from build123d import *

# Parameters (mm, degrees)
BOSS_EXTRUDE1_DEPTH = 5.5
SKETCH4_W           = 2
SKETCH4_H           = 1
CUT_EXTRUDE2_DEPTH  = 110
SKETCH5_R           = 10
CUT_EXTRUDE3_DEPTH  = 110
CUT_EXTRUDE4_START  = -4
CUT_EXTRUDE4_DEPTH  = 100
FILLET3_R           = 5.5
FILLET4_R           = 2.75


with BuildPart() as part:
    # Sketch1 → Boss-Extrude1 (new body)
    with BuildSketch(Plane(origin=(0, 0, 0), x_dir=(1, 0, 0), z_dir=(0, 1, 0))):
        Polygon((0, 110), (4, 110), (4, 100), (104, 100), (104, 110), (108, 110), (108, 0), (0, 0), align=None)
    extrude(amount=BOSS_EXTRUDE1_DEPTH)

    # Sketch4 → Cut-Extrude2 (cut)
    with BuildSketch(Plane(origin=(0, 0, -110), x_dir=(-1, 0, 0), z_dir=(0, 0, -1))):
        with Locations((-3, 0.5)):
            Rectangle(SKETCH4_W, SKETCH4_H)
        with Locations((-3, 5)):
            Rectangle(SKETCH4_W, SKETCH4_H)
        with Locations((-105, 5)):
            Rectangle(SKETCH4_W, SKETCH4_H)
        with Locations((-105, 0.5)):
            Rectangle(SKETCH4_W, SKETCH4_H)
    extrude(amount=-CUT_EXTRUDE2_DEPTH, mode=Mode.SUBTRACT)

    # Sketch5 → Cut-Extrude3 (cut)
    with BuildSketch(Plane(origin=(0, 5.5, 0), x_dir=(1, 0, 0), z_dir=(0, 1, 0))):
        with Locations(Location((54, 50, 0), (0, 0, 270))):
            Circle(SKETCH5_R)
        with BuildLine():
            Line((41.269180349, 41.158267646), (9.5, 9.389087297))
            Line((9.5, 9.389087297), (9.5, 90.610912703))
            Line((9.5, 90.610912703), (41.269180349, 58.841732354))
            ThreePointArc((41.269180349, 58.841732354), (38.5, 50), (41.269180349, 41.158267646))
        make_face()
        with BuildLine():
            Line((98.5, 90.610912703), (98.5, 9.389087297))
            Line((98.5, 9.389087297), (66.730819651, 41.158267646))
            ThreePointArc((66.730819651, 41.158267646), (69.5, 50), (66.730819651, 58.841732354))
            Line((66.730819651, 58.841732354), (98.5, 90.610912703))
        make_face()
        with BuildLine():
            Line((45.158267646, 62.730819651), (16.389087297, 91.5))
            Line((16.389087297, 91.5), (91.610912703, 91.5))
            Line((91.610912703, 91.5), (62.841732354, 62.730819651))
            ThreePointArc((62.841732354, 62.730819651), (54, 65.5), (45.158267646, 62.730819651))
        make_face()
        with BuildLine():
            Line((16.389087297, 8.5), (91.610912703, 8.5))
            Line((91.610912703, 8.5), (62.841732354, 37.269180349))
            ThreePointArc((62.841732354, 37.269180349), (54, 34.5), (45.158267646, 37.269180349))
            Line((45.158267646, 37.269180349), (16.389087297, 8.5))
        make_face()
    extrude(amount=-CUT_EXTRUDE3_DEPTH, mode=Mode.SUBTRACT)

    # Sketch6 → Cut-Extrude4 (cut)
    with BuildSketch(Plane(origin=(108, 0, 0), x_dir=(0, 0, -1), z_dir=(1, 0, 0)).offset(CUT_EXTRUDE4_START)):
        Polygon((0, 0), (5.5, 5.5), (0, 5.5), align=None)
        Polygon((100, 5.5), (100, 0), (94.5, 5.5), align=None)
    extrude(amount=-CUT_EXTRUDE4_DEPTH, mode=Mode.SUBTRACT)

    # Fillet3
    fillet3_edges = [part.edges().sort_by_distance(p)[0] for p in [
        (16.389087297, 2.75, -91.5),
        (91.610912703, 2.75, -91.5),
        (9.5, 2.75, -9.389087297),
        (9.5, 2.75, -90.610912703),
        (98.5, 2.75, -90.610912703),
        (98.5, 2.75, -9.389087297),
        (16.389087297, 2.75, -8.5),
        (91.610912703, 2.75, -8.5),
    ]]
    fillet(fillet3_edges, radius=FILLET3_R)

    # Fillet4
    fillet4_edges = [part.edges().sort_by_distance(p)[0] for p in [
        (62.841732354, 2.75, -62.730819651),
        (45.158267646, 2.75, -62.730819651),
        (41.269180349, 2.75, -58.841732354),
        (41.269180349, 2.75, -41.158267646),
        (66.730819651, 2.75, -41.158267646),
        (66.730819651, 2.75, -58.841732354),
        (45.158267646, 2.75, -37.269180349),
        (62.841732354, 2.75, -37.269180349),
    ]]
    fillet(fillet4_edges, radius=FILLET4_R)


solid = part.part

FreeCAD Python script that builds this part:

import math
import FreeCAD as App
import Part
import Sketcher
from FreeCAD import Vector


def edges_at(feature, points):
    """Names of the edges that pass closest to the given points."""
    edges = feature.Shape.Edges
    near = lambda p: min(range(len(edges)), key=lambda i: edges[i].distToShape(Part.Vertex(*p))[0])
    return sorted({f"Edge{near(p) + 1}" for p in points})


def add_polygon(sketch, points):
    """Adds a closed chain of lines whose ends are joined by coincident constraints."""
    first, n = sketch.GeometryCount, len(points)
    for a, b in zip(points, points[1:] + points[:1]):
        sketch.addGeometry(Part.LineSegment(App.Vector(*a, 0), App.Vector(*b, 0)), False)
    for i in range(n):
        sketch.addConstraint(Sketcher.Constraint("Coincident", first + i, 2, first + (i + 1) % n, 1))

doc = App.newDocument("Part")
body = doc.addObject("PartDesign::Body", "Body")

# Sketch on XZ plane
sketch1 = doc.addObject("Sketcher::SketchObject", "Sketch")
body.addObject(sketch1)
sketch1.AttachmentSupport = (doc.XZ_Plane, [""])
sketch1.MapMode = "FlatFace"
add_polygon(sketch1, [(4, -110), (0, -110), (0, 0), (108, 0), (108, -110), (104, -110), (104, -100), (4, -100)])  # lines 0-7
sketch1.addConstraint([
    Sketcher.Constraint("Horizontal", 0),
    Sketcher.Constraint("Vertical", 1),
    Sketcher.Constraint("Horizontal", 2),
    Sketcher.Constraint("Vertical", 3),
    Sketcher.Constraint("Horizontal", 4),
    Sketcher.Constraint("Vertical", 5),
    Sketcher.Constraint("Horizontal", 6),
    Sketcher.Constraint("Vertical", 7),
    Sketcher.Constraint("Coincident", 1, 2, -1, 1),
    Sketcher.Constraint("Horizontal", 0, 2, 3, 2),
    Sketcher.Constraint("Equal", 0, 4),
    Sketcher.Constraint("DistanceX", 0, 2, 0, 1, 4.0),
    Sketcher.Constraint("DistanceX", 2, 1, 2, 2, 108.0),
    Sketcher.Constraint("DistanceY", 1, 1, 1, 2, 110.0),
    Sketcher.Constraint("DistanceY", 5, 1, 5, 2, 10.0),
])
pad1 = doc.addObject("PartDesign::Pad", "Pad")
body.addObject(pad1)
pad1.Profile = sketch1
pad1.Length = 5.5
pad1.Reversed = True

# Sketch on XY plane
sketch2 = doc.addObject("Sketcher::SketchObject", "Sketch001")
body.addObject(sketch2)
sketch2.AttachmentSupport = (doc.XY_Plane, [""])
sketch2.MapMode = "FlatFace"
sketch2.AttachmentOffset = App.Placement(Vector(0, 0, -110), App.Rotation())
add_polygon(sketch2, [(4, 1), (4, 0), (2, 0), (2, 1)])  # lines 0-3
add_polygon(sketch2, [(4, 5.5), (4, 4.5), (2, 4.5), (2, 5.5)])  # lines 4-7
add_polygon(sketch2, [(106, 5.5), (106, 4.5), (104, 4.5), (104, 5.5)])  # lines 8-11
add_polygon(sketch2, [(106, 1), (106, 0), (104, 0), (104, 1)])  # lines 12-15
sketch2.addConstraint([
    Sketcher.Constraint("Vertical", 0),
    Sketcher.Constraint("Horizontal", 1),
    Sketcher.Constraint("Vertical", 2),
    Sketcher.Constraint("Horizontal", 3),
    Sketcher.Constraint("Vertical", 4),
    Sketcher.Constraint("Horizontal", 5),
    Sketcher.Constraint("Vertical", 6),
    Sketcher.Constraint("Horizontal", 7),
    Sketcher.Constraint("Vertical", 8),
    Sketcher.Constraint("Horizontal", 9),
    Sketcher.Constraint("Vertical", 10),
    Sketcher.Constraint("Horizontal", 11),
    Sketcher.Constraint("Vertical", 12),
    Sketcher.Constraint("Horizontal", 13),
    Sketcher.Constraint("Vertical", 14),
    Sketcher.Constraint("Horizontal", 15),
    Sketcher.Constraint("PointOnObject", 0, 2, -1),
    Sketcher.Constraint("PointOnObject", 12, 2, -1),
    Sketcher.Constraint("Horizontal", 5, 2, 8, 2),
    Sketcher.Constraint("Horizontal", 7, 2, 10, 2),
    Sketcher.Constraint("Horizontal", 3, 2, 14, 2),
    Sketcher.Constraint("Vertical", 3, 2, 4, 2),
    Sketcher.Constraint("Vertical", 2, 2, 5, 2),
    Sketcher.Constraint("Vertical", 11, 2, 12, 2),
    Sketcher.Constraint("Vertical", 10, 2, 13, 2),
    Sketcher.Constraint("Equal", 7, 9),
    Sketcher.Constraint("Equal", 2, 4),
    Sketcher.Constraint("DistanceX", 1, 2, 1, 1, 2.0),
    Sketcher.Constraint("DistanceY", 0, 2, 0, 1, 1.0),
    Sketcher.Constraint("DistanceX", -1, 1, 0, 2, 4.0),
    Sketcher.Constraint("DistanceX", -1, 1, 8, 2, 106.0),
    Sketcher.Constraint("DistanceY", -1, 1, 4, 2, 4.5),
])
pocket1 = doc.addObject("PartDesign::Pocket", "Pocket")
body.addObject(pocket1)
pocket1.Profile = sketch2
pocket1.Length = 110
pocket1.Reversed = True

# Sketch on XZ plane
sketch3 = doc.addObject("Sketcher::SketchObject", "Sketch002")
body.addObject(sketch3)
sketch3.AttachmentSupport = (doc.XZ_Plane, [""])
sketch3.MapMode = "FlatFace"
sketch3.AttachmentOffset = App.Placement(Vector(0, 0, -5.5), App.Rotation())
sketch3.addGeometry([
    Part.Circle(Vector(54, -50, 0), Vector(0, 0, 1), 10),  # 0
    Part.LineSegment(Vector(10, -9, 0), Vector(41, -41, 0)),  # 1
    Part.ArcOfCircle(Part.Circle(Vector(54, -50, 0), Vector(0, 0, 1), 16), math.radians(145), math.radians(215)),  # 2
    Part.LineSegment(Vector(41, -59, 0), Vector(10, -91, 0)),  # 3
    Part.LineSegment(Vector(10, -91, 0), Vector(10, -9, 0)),  # 4
    Part.LineSegment(Vector(98, -9, 0), Vector(98, -91, 0)),  # 5
    Part.LineSegment(Vector(98, -91, 0), Vector(67, -59, 0)),  # 6
    Part.ArcOfCircle(Part.Circle(Vector(54, -50, 0), Vector(0, 0, 1), 16), math.radians(-35), math.radians(35)),  # 7
    Part.LineSegment(Vector(67, -41, 0), Vector(98, -9, 0)),  # 8
    Part.LineSegment(Vector(16, -92, 0), Vector(45, -63, 0)),  # 9
    Part.ArcOfCircle(Part.Circle(Vector(54, -50, 0), Vector(0, 0, 1), 16), math.radians(-125), math.radians(-55)),  # 10
    Part.LineSegment(Vector(63, -63, 0), Vector(92, -92, 0)),  # 11
    Part.LineSegment(Vector(92, -92, 0), Vector(16, -92, 0)),  # 12
    Part.LineSegment(Vector(16, -8, 0), Vector(92, -8, 0)),  # 13
    Part.LineSegment(Vector(92, -8, 0), Vector(63, -37, 0)),  # 14
    Part.ArcOfCircle(Part.Circle(Vector(54, -50, 0), Vector(0, 0, 1), 16), math.radians(55), math.radians(125)),  # 15
    Part.LineSegment(Vector(45, -37, 0), Vector(16, -8, 0)),  # 16
], False)
sketch3.addConstraint([
    Sketcher.Constraint("Coincident", 1, 2, 2, 1),
    Sketcher.Constraint("Coincident", 2, 2, 3, 1),
    Sketcher.Constraint("Coincident", 3, 2, 4, 1),
    Sketcher.Constraint("Coincident", 4, 2, 1, 1),
    Sketcher.Constraint("Coincident", 5, 2, 6, 1),
    Sketcher.Constraint("Coincident", 6, 2, 7, 1),
    Sketcher.Constraint("Coincident", 7, 2, 8, 1),
    Sketcher.Constraint("Coincident", 8, 2, 5, 1),
    Sketcher.Constraint("Coincident", 9, 2, 10, 1),
    Sketcher.Constraint("Coincident", 10, 2, 11, 1),
    Sketcher.Constraint("Coincident", 11, 2, 12, 1),
    Sketcher.Constraint("Coincident", 12, 2, 9, 1),
    Sketcher.Constraint("Coincident", 13, 2, 14, 1),
    Sketcher.Constraint("Coincident", 14, 2, 15, 1),
    Sketcher.Constraint("Coincident", 15, 2, 16, 1),
    Sketcher.Constraint("Coincident", 16, 2, 13, 1),
    Sketcher.Constraint("Vertical", 4),
    Sketcher.Constraint("Vertical", 5),
    Sketcher.Constraint("Horizontal", 12),
    Sketcher.Constraint("Horizontal", 13),
    Sketcher.Constraint("Coincident", 2, 3, 0, 3),
    Sketcher.Constraint("Coincident", 7, 3, 0, 3),
    Sketcher.Constraint("Coincident", 10, 3, 0, 3),
    Sketcher.Constraint("Coincident", 15, 3, 0, 3),
    Sketcher.Constraint("Equal", 2, 7),
    Sketcher.Constraint("Equal", 7, 10),
    Sketcher.Constraint("Equal", 10, 15),
    Sketcher.Constraint("Perpendicular", 1, 3),
    Sketcher.Constraint("Perpendicular", 3, 6),
    Sketcher.Constraint("Perpendicular", 6, 8),
    Sketcher.Constraint("Parallel", 8, 9),
    Sketcher.Constraint("Perpendicular", 9, 11),
    Sketcher.Constraint("Perpendicular", 11, 14),
    Sketcher.Constraint("Perpendicular", 14, 16),
    Sketcher.Constraint("Horizontal", 3, 2, 5, 2),
    Sketcher.Constraint("Horizontal", 2, 2, 6, 2),
    Sketcher.Constraint("Horizontal", 1, 2, 7, 2),
    Sketcher.Constraint("Horizontal", 4, 2, 8, 2),
    Sketcher.Constraint("Horizontal", 9, 2, 10, 2),
    Sketcher.Constraint("Horizontal", 14, 2, 15, 2),
    Sketcher.Constraint("Vertical", 1, 2, 2, 2),
    Sketcher.Constraint("Vertical", 11, 2, 13, 2),
    Sketcher.Constraint("Vertical", 10, 2, 14, 2),
    Sketcher.Constraint("Diameter", 0, 20.0),
    Sketcher.Constraint("Radius", 2, 15.5),
    Sketcher.Constraint("DistanceX", -1, 1, 0, 3, 54.0),
    Sketcher.Constraint("DistanceY", 0, 3, -1, 1, 50.0),
    Sketcher.Constraint("DistanceX", -1, 1, 3, 2, 9.5),
    Sketcher.Constraint("DistanceY", 11, 2, -1, 1, 91.5),
    Sketcher.Constraint("DistanceX", 12, 2, 12, 1, 75.221825),
    Sketcher.Constraint("DistanceY", 4, 1, 4, 2, 81.221825),
])
pocket2 = doc.addObject("PartDesign::Pocket", "Pocket001")
body.addObject(pocket2)
pocket2.Profile = sketch3
pocket2.Length = 110
pocket2.Reversed = True

# Sketch on YZ plane
sketch4 = doc.addObject("Sketcher::SketchObject", "Sketch003")
body.addObject(sketch4)
sketch4.AttachmentSupport = (doc.YZ_Plane, [""])
sketch4.MapMode = "FlatFace"
sketch4.AttachmentOffset = App.Placement(Vector(0, 0, 104), App.Rotation())
add_polygon(sketch4, [(0, 0), (6, -6), (6, 0)])  # lines 0-2
add_polygon(sketch4, [(0, -100), (6, -100), (6, -94)])  # lines 3-5
sketch4.addConstraint([
    Sketcher.Constraint("Vertical", 1),
    Sketcher.Constraint("Horizontal", 2),
    Sketcher.Constraint("Horizontal", 3),
    Sketcher.Constraint("Vertical", 4),
    Sketcher.Constraint("Coincident", 2, 2, -1, 1),
    Sketcher.Constraint("PointOnObject", 5, 2, -2),
    Sketcher.Constraint("Perpendicular", 0, 5),
    Sketcher.Constraint("Vertical", 1, 2, 3, 2),
    Sketcher.Constraint("Equal", 3, 1),
    Sketcher.Constraint("DistanceX", 2, 2, 2, 1, 5.5),
    Sketcher.Constraint("DistanceY", 3, 2, -1, 1, 100.0),
])
pocket3 = doc.addObject("PartDesign::Pocket", "Pocket002")
body.addObject(pocket3)
pocket3.Profile = sketch4
pocket3.Length = 100
doc.recompute()

fillet = doc.addObject("PartDesign::Fillet", "Fillet")
body.addObject(fillet)
fillet.Base = (pocket3, edges_at(pocket3, [
    (16.389, 2.75, -91.5),
    (91.611, 2.75, -91.5),
    (9.5, 2.75, -9.389),
    (9.5, 2.75, -90.611),
    (98.5, 2.75, -90.611),
    (98.5, 2.75, -9.389),
    (16.389, 2.75, -8.5),
    (91.611, 2.75, -8.5),
]))
fillet.Radius = 5.5
doc.recompute()

fillet2 = doc.addObject("PartDesign::Fillet", "Fillet001")
body.addObject(fillet2)
fillet2.Base = (fillet, edges_at(fillet, [
    (62.842, 2.75, -62.731),
    (45.158, 2.75, -62.731),
    (41.269, 2.75, -58.842),
    (41.269, 2.75, -41.158),
    (66.731, 2.75, -41.158),
    (66.731, 2.75, -58.842),
    (45.158, 2.75, -37.269),
    (62.842, 2.75, -37.269),
]))
fillet2.Radius = 2.75

doc.recompute()
